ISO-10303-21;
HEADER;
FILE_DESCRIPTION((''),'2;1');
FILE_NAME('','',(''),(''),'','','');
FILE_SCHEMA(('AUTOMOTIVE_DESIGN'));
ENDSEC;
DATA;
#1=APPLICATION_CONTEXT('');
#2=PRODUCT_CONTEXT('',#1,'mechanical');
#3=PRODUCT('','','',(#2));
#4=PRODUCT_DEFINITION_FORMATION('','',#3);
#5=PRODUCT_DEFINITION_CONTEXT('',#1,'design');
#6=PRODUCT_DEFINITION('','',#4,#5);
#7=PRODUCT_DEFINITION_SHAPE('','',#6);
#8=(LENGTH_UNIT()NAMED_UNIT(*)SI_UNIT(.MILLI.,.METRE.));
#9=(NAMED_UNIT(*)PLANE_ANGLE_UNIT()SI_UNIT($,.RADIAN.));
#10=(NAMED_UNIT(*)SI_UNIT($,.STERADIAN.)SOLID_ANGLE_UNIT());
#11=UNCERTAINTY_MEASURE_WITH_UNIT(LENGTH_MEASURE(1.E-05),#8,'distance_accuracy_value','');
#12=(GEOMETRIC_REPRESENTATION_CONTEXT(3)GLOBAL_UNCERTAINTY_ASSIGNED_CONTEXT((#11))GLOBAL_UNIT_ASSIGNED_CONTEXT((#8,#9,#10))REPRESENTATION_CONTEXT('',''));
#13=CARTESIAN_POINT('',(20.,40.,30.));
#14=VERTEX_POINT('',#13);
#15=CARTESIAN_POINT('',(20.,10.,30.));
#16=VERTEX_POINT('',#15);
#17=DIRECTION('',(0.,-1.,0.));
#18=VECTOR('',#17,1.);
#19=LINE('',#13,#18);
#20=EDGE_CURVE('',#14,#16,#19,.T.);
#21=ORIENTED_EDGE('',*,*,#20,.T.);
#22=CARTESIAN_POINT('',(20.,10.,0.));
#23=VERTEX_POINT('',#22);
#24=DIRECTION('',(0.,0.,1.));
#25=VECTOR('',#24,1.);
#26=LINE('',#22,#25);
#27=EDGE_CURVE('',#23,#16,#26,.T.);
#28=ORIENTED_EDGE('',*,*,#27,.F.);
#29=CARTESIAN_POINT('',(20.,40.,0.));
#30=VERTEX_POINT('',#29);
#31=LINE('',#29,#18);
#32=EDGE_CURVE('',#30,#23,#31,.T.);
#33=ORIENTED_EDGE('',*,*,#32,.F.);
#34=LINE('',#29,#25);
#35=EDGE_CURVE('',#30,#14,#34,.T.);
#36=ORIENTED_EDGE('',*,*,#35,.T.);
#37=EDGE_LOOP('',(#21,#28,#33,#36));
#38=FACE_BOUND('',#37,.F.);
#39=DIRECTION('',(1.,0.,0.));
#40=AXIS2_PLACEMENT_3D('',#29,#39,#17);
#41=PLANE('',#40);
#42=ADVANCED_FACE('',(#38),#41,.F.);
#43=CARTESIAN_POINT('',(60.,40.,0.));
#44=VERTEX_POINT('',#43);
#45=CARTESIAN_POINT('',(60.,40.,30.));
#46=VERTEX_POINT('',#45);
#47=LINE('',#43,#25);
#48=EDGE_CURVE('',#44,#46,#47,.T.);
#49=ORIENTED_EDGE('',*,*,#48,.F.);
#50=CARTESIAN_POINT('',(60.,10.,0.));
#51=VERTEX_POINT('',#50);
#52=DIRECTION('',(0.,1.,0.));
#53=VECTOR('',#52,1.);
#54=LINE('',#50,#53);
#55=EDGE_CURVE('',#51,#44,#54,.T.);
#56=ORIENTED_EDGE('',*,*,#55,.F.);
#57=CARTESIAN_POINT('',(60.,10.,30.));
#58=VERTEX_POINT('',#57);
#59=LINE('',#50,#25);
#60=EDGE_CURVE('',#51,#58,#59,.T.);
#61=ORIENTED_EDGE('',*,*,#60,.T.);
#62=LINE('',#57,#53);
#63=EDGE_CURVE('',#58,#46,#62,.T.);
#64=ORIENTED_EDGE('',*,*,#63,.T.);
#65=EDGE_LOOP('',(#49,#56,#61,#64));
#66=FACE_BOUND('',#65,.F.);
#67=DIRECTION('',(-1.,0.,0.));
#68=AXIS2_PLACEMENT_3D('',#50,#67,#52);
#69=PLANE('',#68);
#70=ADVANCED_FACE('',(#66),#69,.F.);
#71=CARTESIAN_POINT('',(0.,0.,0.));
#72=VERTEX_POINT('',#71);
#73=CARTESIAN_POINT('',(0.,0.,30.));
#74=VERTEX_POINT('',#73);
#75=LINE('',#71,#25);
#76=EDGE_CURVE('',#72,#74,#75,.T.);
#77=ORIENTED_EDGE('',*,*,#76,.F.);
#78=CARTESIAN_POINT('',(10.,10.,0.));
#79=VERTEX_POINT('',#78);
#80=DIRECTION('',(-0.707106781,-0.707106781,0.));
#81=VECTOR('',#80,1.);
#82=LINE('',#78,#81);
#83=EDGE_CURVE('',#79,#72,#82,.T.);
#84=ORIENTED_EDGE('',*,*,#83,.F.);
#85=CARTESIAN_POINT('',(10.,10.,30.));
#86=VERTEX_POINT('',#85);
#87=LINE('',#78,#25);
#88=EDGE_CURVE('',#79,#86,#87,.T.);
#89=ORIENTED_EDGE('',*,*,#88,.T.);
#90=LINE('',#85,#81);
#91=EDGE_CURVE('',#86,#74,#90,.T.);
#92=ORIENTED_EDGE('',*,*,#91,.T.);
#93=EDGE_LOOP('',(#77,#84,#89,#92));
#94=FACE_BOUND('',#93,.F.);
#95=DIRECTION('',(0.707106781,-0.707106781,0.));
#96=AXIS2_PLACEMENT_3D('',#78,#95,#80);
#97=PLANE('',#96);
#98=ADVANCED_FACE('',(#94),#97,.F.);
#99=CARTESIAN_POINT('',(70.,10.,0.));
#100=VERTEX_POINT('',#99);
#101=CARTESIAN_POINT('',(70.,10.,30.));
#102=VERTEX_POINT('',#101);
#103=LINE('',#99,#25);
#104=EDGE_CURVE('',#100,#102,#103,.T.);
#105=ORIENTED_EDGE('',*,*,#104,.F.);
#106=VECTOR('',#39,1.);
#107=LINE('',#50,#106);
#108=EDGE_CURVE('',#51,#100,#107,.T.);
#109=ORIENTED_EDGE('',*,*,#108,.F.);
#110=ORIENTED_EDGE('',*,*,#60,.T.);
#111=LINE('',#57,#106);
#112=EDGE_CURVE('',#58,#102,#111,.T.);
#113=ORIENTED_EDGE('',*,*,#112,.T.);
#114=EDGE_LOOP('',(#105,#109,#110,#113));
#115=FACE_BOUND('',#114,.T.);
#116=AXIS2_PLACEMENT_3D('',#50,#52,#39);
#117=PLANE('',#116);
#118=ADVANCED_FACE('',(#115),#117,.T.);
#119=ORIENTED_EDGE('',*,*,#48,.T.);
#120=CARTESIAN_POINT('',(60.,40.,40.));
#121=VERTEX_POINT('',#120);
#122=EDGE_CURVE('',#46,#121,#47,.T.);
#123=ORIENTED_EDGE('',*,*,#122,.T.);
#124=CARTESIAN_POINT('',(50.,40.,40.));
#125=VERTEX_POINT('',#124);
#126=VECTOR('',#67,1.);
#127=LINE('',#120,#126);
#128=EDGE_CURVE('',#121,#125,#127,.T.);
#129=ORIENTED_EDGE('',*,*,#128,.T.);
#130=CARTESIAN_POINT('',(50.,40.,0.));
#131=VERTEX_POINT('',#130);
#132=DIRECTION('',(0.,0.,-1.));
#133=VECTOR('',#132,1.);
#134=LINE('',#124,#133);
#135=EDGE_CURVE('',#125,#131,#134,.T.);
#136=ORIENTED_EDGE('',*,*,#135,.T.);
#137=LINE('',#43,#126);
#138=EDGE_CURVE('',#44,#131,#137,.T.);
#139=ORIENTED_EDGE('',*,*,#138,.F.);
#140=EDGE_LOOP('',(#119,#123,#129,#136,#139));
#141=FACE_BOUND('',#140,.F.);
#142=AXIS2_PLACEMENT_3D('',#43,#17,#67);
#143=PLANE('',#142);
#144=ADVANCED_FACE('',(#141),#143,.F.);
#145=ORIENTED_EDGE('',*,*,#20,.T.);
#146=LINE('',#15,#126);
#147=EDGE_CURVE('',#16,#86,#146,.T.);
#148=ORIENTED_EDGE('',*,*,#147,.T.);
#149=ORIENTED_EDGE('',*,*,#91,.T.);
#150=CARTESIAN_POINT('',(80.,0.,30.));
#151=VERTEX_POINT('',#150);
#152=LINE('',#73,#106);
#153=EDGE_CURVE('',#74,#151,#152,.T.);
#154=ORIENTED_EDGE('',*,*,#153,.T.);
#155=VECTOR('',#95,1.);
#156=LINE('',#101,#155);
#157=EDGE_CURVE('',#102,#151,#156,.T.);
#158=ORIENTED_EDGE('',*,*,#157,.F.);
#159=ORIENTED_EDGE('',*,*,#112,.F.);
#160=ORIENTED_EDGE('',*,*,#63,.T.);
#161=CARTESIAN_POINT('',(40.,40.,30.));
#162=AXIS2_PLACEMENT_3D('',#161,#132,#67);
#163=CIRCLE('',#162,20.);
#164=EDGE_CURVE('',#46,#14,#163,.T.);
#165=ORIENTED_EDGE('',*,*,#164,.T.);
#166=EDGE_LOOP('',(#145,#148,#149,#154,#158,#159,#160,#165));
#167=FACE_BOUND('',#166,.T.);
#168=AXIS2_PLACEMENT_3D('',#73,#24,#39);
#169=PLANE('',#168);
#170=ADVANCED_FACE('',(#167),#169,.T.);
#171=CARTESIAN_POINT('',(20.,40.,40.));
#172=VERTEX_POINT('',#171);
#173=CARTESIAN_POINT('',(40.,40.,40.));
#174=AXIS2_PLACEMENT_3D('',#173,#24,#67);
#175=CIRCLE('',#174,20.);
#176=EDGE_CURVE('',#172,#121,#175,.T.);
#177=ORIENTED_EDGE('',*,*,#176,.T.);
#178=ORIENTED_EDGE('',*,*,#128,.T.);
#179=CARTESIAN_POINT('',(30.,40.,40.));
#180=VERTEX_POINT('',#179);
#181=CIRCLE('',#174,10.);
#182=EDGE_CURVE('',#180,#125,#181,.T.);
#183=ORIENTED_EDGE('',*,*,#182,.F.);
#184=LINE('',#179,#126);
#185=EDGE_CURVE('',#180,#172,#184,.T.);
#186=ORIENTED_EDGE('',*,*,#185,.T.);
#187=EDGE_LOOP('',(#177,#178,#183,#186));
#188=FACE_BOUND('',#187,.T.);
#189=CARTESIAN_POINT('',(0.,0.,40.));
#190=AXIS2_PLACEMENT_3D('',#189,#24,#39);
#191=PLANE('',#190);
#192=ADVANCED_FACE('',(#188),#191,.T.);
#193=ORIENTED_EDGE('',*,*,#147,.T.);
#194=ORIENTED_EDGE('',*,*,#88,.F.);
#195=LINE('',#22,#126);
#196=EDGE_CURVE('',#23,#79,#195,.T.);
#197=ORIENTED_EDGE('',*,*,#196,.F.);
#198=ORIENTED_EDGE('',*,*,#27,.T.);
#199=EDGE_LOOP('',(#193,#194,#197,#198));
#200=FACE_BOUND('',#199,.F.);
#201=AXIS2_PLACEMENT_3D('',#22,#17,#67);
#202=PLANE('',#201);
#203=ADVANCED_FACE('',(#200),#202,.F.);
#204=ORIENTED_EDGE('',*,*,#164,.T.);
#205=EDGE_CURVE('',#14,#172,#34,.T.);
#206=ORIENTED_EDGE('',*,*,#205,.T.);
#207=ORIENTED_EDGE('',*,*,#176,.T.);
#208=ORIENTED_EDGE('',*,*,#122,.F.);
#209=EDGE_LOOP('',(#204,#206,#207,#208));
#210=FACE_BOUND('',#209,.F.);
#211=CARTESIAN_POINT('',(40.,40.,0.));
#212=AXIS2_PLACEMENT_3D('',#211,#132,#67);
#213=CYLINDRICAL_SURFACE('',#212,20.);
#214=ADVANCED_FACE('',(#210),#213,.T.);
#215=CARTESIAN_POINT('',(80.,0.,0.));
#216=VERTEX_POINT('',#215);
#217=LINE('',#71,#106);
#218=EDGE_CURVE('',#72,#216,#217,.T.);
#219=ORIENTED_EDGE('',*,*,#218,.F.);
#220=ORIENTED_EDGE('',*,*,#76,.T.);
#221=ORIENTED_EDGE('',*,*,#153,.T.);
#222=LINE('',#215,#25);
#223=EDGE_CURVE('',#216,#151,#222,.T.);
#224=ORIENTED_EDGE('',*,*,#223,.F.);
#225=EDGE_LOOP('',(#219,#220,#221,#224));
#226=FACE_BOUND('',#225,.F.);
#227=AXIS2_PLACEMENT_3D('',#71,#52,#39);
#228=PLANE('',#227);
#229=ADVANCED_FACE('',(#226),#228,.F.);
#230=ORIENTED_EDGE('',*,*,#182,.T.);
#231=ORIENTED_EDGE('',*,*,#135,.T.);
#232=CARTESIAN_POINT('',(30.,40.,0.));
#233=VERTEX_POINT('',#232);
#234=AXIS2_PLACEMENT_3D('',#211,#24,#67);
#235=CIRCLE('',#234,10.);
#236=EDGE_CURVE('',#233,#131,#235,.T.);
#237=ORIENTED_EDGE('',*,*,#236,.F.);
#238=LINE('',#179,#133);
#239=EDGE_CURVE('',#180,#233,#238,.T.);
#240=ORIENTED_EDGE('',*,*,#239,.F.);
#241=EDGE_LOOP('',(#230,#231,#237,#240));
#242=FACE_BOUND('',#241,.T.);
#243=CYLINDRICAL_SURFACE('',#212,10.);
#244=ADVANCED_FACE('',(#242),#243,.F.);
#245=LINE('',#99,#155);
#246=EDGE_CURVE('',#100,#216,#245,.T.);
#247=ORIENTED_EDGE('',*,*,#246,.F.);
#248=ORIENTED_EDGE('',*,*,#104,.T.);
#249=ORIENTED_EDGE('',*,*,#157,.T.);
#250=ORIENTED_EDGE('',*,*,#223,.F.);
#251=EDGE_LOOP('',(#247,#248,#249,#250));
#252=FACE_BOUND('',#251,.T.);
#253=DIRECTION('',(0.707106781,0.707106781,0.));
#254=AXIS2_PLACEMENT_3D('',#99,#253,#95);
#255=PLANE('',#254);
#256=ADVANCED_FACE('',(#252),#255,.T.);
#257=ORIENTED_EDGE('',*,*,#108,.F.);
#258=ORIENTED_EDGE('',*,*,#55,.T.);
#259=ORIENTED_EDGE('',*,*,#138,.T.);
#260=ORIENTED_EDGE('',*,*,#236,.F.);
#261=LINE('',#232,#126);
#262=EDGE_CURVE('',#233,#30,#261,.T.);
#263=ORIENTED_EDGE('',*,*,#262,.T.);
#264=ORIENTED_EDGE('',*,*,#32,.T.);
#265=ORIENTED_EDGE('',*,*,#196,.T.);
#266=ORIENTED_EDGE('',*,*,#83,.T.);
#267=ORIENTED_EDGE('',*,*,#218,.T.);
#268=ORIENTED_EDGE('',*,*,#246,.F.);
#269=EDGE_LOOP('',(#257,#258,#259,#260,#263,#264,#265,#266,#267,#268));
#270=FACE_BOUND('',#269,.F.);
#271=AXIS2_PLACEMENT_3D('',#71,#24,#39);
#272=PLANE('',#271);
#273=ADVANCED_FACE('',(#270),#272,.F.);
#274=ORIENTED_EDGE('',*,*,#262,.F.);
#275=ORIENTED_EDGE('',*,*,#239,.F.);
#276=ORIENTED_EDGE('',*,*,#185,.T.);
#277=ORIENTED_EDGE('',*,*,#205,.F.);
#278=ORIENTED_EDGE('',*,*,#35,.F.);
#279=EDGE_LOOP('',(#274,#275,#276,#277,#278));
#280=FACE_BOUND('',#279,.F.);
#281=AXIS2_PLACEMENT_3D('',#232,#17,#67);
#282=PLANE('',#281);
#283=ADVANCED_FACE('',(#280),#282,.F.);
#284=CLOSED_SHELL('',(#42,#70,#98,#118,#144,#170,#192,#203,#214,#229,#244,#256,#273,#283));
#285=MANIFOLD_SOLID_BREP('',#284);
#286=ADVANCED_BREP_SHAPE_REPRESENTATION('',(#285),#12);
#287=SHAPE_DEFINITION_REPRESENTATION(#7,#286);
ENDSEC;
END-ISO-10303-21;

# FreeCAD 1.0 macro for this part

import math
import FreeCAD as App
import Part
import Sketcher

V = App.Vector

doc = App.newDocument("Part")
body = doc.addObject("PartDesign::Body", "Body")

sketch1 = body.newObject("Sketcher::SketchObject", "Sketch")
sketch1.AttachmentSupport = (doc.getObject("XY_Plane"), [""])
sketch1.MapMode = "FlatFace"
sketch1.addGeometry([
    Part.LineSegment(V(10, 10, 0), V(0, 0, 0)),
    Part.LineSegment(V(0, 0, 0), V(80, 0, 0)),
    Part.LineSegment(V(80, 0, 0), V(70, 10, 0)),
    Part.LineSegment(V(70, 10, 0), V(60, 10, 0)),
    Part.LineSegment(V(60, 10, 0), V(60, 40, 0)),
    Part.LineSegment(V(60, 40, 0), V(50, 40, 0)),
    Part.ArcOfCircle(Part.Circle(V(40, 40, 0), V(0, 0, 1), 10), math.radians(180), math.radians(360)),
    Part.LineSegment(V(30, 40, 0), V(20, 40, 0)),
    Part.LineSegment(V(20, 40, 0), V(20, 10, 0)),
    Part.LineSegment(V(20, 10, 0), V(10, 10, 0)),
], False)
sketch1.addConstraint([
    Sketcher.Constraint("Coincident", 0, 2, 1, 1),
    Sketcher.Constraint("Coincident", 1, 2, 2, 1),
    Sketcher.Constraint("Coincident", 2, 2, 3, 1),
    Sketcher.Constraint("Coincident", 3, 2, 4, 1),
    Sketcher.Constraint("Coincident", 4, 2, 5, 1),
    Sketcher.Constraint("Coincident", 5, 2, 6, 2),
    Sketcher.Constraint("Coincident", 6, 1, 7, 1),
    Sketcher.Constraint("Coincident", 7, 2, 8, 1),
    Sketcher.Constraint("Coincident", 8, 2, 9, 1),
    Sketcher.Constraint("Coincident", 9, 2, 0, 1),
    Sketcher.Constraint("Horizontal", 1),
    Sketcher.Constraint("Horizontal", 3),
    Sketcher.Constraint("Vertical", 4),
    Sketcher.Constraint("Horizontal", 5),
    Sketcher.Constraint("Horizontal", 7),
    Sketcher.Constraint("Vertical", 8),
    Sketcher.Constraint("Horizontal", 9),
    Sketcher.Constraint("Coincident", 0, 2, -1, 1),
    Sketcher.Constraint("Perpendicular", 0, 2),
    Sketcher.Constraint("Horizontal", 6, 3, 4, 2),
    Sketcher.Constraint("Horizontal", 5, 2, 6, 1),
    Sketcher.Constraint("Horizontal", 3, 2, 8, 2),
    Sketcher.Constraint("Equal", 3, 5),
    Sketcher.Constraint("Equal", 5, 7),
    Sketcher.Constraint("Equal", 7, 9),
    Sketcher.Constraint("Equal", 0, 2),
    Sketcher.Constraint("Radius", 6, 10.0),
    Sketcher.Constraint("DistanceX", 1, 1, 1, 2, 80.0),
    Sketcher.Constraint("DistanceX", 3, 2, 3, 1, 10.0),
    Sketcher.Constraint("DistanceY", 4, 1, 4, 2, 30.0),
])
pad1 = body.newObject("PartDesign::Pad", "Pad")
pad1.Profile = sketch1
pad1.Length = 30

sketch2 = body.newObject("Sketcher::SketchObject", "Sketch001")
sketch2.AttachmentSupport = (doc.getObject("XY_Plane"), [""])
sketch2.MapMode = "FlatFace"
sketch2.addGeometry([
    Part.LineSegment(V(30, 40, 0), V(20, 40, 0)),
    Part.ArcOfCircle(Part.Circle(V(40, 40, 0), V(0, 0, 1), 20), math.radians(180), math.radians(360)),
    Part.LineSegment(V(60, 40, 0), V(50, 40, 0)),
    Part.ArcOfCircle(Part.Circle(V(40, 40, 0), V(0, 0, 1), 10), math.radians(180), math.radians(360)),
], False)
sketch2.addConstraint([
    Sketcher.Constraint("Coincident", 0, 2, 1, 1),
    Sketcher.Constraint("Coincident", 1, 2, 2, 1),
    Sketcher.Constraint("Coincident", 2, 2, 3, 2),
    Sketcher.Constraint("Coincident", 3, 1, 0, 1),
    Sketcher.Constraint("Horizontal", 0),
    Sketcher.Constraint("Horizontal", 2),
    Sketcher.Constraint("Coincident", 3, 3, 1, 3),
    Sketcher.Constraint("Horizontal", 3, 3, 0, 2),
    Sketcher.Constraint("Horizontal", 0, 2, 1, 2),
    Sketcher.Constraint("Radius", 1, 20.0),
    Sketcher.Constraint("Radius", 3, 10.0),
    Sketcher.Constraint("DistanceX", -1, 1, 1, 3, 40.0),
    Sketcher.Constraint("DistanceY", -1, 1, 1, 3, 40.0),
])
pad2 = body.newObject("PartDesign::Pad", "Pad001")
pad2.Profile = sketch2
pad2.Length = 40

doc.recompute()
